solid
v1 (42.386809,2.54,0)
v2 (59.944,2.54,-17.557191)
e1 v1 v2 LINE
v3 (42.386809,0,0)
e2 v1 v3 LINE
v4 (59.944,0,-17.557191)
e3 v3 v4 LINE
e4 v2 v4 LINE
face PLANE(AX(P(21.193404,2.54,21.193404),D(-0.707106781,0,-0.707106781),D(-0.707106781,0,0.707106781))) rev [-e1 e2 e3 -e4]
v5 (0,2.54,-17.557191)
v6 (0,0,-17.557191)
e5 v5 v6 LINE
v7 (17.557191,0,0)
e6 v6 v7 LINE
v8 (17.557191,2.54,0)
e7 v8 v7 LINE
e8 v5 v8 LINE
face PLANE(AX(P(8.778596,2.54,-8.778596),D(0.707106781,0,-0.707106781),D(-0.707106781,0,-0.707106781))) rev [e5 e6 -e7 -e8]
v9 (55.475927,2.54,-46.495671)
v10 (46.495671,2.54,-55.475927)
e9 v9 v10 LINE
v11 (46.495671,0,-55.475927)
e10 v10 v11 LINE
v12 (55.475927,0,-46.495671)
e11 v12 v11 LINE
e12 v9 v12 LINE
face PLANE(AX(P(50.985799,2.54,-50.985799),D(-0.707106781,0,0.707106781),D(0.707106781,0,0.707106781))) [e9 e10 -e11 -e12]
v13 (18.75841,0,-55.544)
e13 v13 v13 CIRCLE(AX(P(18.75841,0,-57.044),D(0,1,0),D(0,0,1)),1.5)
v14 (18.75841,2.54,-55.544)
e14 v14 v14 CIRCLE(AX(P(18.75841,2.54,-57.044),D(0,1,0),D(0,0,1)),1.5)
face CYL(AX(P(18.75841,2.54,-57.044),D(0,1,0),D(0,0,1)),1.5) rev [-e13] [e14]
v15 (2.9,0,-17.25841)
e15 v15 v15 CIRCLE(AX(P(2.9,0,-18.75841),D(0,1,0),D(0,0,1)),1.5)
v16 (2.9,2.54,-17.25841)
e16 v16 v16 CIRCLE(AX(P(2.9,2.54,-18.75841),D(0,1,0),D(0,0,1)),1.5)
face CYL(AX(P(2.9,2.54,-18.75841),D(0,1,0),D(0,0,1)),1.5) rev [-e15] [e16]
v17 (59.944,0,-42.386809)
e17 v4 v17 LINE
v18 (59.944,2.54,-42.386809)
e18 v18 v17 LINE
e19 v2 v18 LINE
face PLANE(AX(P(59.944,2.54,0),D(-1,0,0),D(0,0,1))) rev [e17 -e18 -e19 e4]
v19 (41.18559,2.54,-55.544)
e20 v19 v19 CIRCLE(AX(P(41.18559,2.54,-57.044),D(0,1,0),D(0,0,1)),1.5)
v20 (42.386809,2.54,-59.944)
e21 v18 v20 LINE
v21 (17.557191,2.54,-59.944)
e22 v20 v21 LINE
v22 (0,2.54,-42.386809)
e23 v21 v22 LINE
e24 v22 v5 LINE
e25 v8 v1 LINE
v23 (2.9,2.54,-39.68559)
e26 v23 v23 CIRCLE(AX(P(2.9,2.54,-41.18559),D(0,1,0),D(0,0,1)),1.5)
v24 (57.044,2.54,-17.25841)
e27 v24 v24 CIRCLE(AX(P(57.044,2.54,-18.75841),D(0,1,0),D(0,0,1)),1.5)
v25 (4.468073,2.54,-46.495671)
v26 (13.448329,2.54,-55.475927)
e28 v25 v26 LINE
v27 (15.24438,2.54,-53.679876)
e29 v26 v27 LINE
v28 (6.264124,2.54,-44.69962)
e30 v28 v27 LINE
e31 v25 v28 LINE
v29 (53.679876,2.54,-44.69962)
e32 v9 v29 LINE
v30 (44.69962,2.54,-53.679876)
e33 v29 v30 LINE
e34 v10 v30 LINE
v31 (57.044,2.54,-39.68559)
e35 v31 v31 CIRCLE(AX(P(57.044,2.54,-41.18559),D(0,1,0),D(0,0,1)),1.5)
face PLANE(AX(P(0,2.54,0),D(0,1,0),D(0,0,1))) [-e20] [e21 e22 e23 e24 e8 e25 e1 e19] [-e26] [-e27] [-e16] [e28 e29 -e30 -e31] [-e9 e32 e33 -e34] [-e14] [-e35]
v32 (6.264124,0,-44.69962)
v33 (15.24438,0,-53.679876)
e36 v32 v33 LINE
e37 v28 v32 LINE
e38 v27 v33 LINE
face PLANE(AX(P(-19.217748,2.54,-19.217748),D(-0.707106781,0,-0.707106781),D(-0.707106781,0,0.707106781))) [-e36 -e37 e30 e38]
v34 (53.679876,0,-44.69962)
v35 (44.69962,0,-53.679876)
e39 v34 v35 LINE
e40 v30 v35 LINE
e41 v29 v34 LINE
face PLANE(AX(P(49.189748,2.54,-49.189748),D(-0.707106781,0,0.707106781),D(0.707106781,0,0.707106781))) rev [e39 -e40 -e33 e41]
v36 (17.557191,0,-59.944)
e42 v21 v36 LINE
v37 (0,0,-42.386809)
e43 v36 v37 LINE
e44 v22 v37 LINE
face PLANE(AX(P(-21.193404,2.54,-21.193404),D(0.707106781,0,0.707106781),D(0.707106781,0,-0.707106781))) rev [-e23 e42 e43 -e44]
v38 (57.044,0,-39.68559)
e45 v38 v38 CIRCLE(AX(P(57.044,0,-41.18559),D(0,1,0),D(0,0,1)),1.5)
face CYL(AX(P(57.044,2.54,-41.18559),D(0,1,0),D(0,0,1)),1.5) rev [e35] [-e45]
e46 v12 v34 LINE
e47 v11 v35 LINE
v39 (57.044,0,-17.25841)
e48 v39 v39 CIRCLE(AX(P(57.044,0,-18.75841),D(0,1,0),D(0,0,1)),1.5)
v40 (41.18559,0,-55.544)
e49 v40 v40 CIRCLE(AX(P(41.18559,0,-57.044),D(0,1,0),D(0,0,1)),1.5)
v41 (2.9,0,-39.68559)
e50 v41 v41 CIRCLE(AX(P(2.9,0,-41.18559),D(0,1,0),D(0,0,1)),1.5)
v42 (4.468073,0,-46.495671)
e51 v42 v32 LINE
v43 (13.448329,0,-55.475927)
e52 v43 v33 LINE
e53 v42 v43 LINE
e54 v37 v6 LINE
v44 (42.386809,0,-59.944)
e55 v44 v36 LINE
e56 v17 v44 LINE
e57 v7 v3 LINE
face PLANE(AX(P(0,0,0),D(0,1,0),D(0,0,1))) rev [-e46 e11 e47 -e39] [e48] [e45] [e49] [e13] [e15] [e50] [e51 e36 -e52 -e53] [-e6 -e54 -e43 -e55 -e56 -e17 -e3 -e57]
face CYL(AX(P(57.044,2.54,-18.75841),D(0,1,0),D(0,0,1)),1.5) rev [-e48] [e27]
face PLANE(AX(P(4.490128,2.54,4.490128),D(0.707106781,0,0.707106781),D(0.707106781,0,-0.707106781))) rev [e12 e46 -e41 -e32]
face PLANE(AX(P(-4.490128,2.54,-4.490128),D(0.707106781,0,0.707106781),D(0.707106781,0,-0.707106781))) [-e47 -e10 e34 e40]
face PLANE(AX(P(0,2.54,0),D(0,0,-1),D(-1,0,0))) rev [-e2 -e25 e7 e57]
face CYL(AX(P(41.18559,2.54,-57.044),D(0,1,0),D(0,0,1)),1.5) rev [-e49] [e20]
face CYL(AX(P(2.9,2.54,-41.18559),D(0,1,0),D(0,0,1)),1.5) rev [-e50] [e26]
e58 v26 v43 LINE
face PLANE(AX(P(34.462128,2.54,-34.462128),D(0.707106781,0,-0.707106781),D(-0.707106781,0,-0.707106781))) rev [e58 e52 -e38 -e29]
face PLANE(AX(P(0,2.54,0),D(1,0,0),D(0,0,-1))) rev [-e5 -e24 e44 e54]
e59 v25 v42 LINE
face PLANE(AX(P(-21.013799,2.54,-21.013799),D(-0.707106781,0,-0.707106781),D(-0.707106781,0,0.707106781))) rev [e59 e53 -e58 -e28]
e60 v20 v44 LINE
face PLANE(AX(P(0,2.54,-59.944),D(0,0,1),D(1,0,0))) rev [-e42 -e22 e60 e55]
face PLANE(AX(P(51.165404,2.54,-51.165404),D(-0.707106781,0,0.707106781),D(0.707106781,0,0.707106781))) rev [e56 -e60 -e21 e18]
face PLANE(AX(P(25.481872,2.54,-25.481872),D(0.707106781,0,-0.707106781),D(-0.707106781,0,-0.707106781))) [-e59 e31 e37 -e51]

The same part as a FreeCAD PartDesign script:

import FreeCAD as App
import Part
import Sketcher
Q = App.Units.Quantity

doc = App.newDocument("Part")
body = doc.addObject("PartDesign::Body", "Body")

# Sketch on XZ plane
sketch1 = doc.addObject("Sketcher::SketchObject", "Sketch")
body.addObject(sketch1)
sketch1.AttachmentSupport = (doc.XZ_Plane, [""])
sketch1.MapMode = "FlatFace"
sketch1.addGeometry(Part.LineSegment(App.Vector(59.9, -42.4, 0), App.Vector(42.4, -59.9, 0)), False)
sketch1.addGeometry(Part.LineSegment(App.Vector(42.4, -59.9, 0), App.Vector(17.6, -59.9, 0)), False)
sketch1.addGeometry(Part.LineSegment(App.Vector(17.6, -59.9, 0), App.Vector(0, -42.4, 0)), False)
sketch1.addGeometry(Part.LineSegment(App.Vector(0, -42.4, 0), App.Vector(0, -17.6, 0)), False)
sketch1.addGeometry(Part.LineSegment(App.Vector(0, -17.6, 0), App.Vector(17.6, 0, 0)), False)
sketch1.addGeometry(Part.LineSegment(App.Vector(17.6, 0, 0), App.Vector(42.4, 0, 0)), False)
sketch1.addGeometry(Part.LineSegment(App.Vector(42.4, 0, 0), App.Vector(59.9, -17.6, 0)), False)
sketch1.addGeometry(Part.LineSegment(App.Vector(59.9, -17.6, 0), App.Vector(59.9, -42.4, 0)), False)
sketch1.addGeometry(Part.LineSegment(App.Vector(6.3, -44.7, 0), App.Vector(4.5, -46.5, 0)), False)
sketch1.addGeometry(Part.LineSegment(App.Vector(4.5, -46.5, 0), App.Vector(13.4, -55.5, 0)), False)
sketch1.addGeometry(Part.LineSegment(App.Vector(13.4, -55.5, 0), App.Vector(15.2, -53.7, 0)), False)
sketch1.addGeometry(Part.LineSegment(App.Vector(15.2, -53.7, 0), App.Vector(6.3, -44.7, 0)), False)
sketch1.addGeometry(Part.LineSegment(App.Vector(55.5, -46.5, 0), App.Vector(53.7, -44.7, 0)), False)
sketch1.addGeometry(Part.LineSegment(App.Vector(53.7, -44.7, 0), App.Vector(44.7, -53.7, 0)), False)
sketch1.addGeometry(Part.LineSegment(App.Vector(44.7, -53.7, 0), App.Vector(46.5, -55.5, 0)), False)
sketch1.addGeometry(Part.LineSegment(App.Vector(46.5, -55.5, 0), App.Vector(55.5, -46.5, 0)), False)
sketch1.addConstraint(Sketcher.Constraint("Coincident", 0, 2, 1, 1))
sketch1.addConstraint(Sketcher.Constraint("Coincident", 1, 2, 2, 1))
sketch1.addConstraint(Sketcher.Constraint("Coincident", 2, 2, 3, 1))
sketch1.addConstraint(Sketcher.Constraint("Coincident", 3, 2, 4, 1))
sketch1.addConstraint(Sketcher.Constraint("Coincident", 4, 2, 5, 1))
sketch1.addConstraint(Sketcher.Constraint("Coincident", 5, 2, 6, 1))
sketch1.addConstraint(Sketcher.Constraint("Coincident", 6, 2, 7, 1))
sketch1.addConstraint(Sketcher.Constraint("Coincident", 7, 2, 0, 1))
sketch1.addConstraint(Sketcher.Constraint("Coincident", 8, 2, 9, 1))
sketch1.addConstraint(Sketcher.Constraint("Coincident", 9, 2, 10, 1))
sketch1.addConstraint(Sketcher.Constraint("Coincident", 10, 2, 11, 1))
sketch1.addConstraint(Sketcher.Constraint("Coincident", 11, 2, 8, 1))
sketch1.addConstraint(Sketcher.Constraint("Coincident", 12, 2, 13, 1))
sketch1.addConstraint(Sketcher.Constraint("Coincident", 13, 2, 14, 1))
sketch1.addConstraint(Sketcher.Constraint("Coincident", 14, 2, 15, 1))
sketch1.addConstraint(Sketcher.Constraint("Coincident", 15, 2, 12, 1))
sketch1.addConstraint(Sketcher.Constraint("Horizontal", 1))
sketch1.addConstraint(Sketcher.Constraint("Vertical", 3))
sketch1.addConstraint(Sketcher.Constraint("Horizontal", 5))
sketch1.addConstraint(Sketcher.Constraint("Vertical", 7))
sketch1.addConstraint(Sketcher.Constraint("PointOnObject", 2, 2, -2))
sketch1.addConstraint(Sketcher.Constraint("PointOnObject", 4, 2, -1))
sketch1.addConstraint(Sketcher.Constraint("Perpendicular", 0, 2))
sketch1.addConstraint(Sketcher.Constraint("Perpendicular", 2, 4))
sketch1.addConstraint(Sketcher.Constraint("Perpendicular", 4, 6))
sketch1.addConstraint(Sketcher.Constraint("Perpendicular", 6, 8))
sketch1.addConstraint(Sketcher.Constraint("Perpendicular", 8, 9))
sketch1.addConstraint(Sketcher.Constraint("Perpendicular", 9, 10))
sketch1.addConstraint(Sketcher.Constraint("Perpendicular", 10, 11))
sketch1.addConstraint(Sketcher.Constraint("Parallel", 11, 12))
sketch1.addConstraint(Sketcher.Constraint("Perpendicular", 12, 13))
sketch1.addConstraint(Sketcher.Constraint("Perpendicular", 13, 14))
sketch1.addConstraint(Sketcher.Constraint("Perpendicular", 14, 15))
sketch1.addConstraint(Sketcher.Constraint("Horizontal", 3, 2, 6, 2))
sketch1.addConstraint(Sketcher.Constraint("Horizontal", 2, 2, 7, 2))
sketch1.addConstraint(Sketcher.Constraint("Horizontal", 11, 2, 12, 2))
sketch1.addConstraint(Sketcher.Constraint("Horizontal", 10, 2, 13, 2))
sketch1.addConstraint(Sketcher.Constraint("Horizontal", 9, 2, 14, 2))
sketch1.addConstraint(Sketcher.Constraint("Vertical", 1, 2, 4, 2))
sketch1.addConstraint(Sketcher.Constraint("Vertical", 0, 2, 5, 2))
sketch1.addConstraint(Sketcher.Constraint("Equal", 5, 3))
sketch1.addConstraint(Sketcher.Constraint("Distance", 8, Q("0.1 in")))
sketch1.addConstraint(Sketcher.Constraint("Distance", 9, Q("0.5 in")))
sketch1.addConstraint(Sketcher.Constraint("DistanceY", 0, 2, -1, 1, Q("2.36 in")))
sketch1.addConstraint(Sketcher.Constraint("DistanceX", 1, 2, 1, 1, Q("24.829618 mm")))
sketch1.addConstraint(Sketcher.Constraint("DistanceY", 8, 2, -1, 1, Q("46.495671 mm")))
sketch1.addConstraint(Sketcher.Constraint("DistanceX", -1, 1, 9, 2, Q("13.448329 mm")))
sketch1.addConstraint(Sketcher.Constraint("DistanceX", -1, 1, 13, 2, Q("44.69962 mm")))
pad1 = doc.addObject("PartDesign::Pad", "Pad")
body.addObject(pad1)
pad1.Profile = sketch1
pad1.Length = Q("0.1 in")
pad1.Reversed = True

# Sketch on XZ plane
sketch2 = doc.addObject("Sketcher::SketchObject", "Sketch001")
body.addObject(sketch2)
sketch2.AttachmentSupport = (doc.XZ_Plane, [""])
sketch2.MapMode = "FlatFace"
sketch2.AttachmentOffset = App.Placement(App.Vector(0, 0, -0.1 * 25.4), App.Rotation())
sketch2.addGeometry(Part.Circle(App.Vector(2.9, -18.8, 0), App.Vector(0, 0, 1), 1.5), False)
sketch2.addGeometry(Part.Circle(App.Vector(57, -18.8, 0), App.Vector(0, 0, 1), 1.5), False)
sketch2.addGeometry(Part.Circle(App.Vector(2.9, -41.2, 0), App.Vector(0, 0, 1), 1.5), False)
sketch2.addGeometry(Part.Circle(App.Vector(57, -41.2, 0), App.Vector(0, 0, 1), 1.5), False)
sketch2.addGeometry(Part.Circle(App.Vector(18.8, -57, 0), App.Vector(0, 0, 1), 1.5), False)
sketch2.addGeometry(Part.Circle(App.Vector(41.2, -57, 0), App.Vector(0, 0, 1), 1.5), False)
sketch2.addConstraint(Sketcher.Constraint("Equal", 0, 1))
sketch2.addConstraint(Sketcher.Constraint("Equal", 1, 2))
sketch2.addConstraint(Sketcher.Constraint("Equal", 2, 3))
sketch2.addConstraint(Sketcher.Constraint("Equal", 3, 4))
sketch2.addConstraint(Sketcher.Constraint("Equal", 4, 5))
sketch2.addConstraint(Sketcher.Constraint("Horizontal", 0, 3, 1, 3))
sketch2.addConstraint(Sketcher.Constraint("Horizontal", 2, 3, 3, 3))
sketch2.addConstraint(Sketcher.Constraint("Horizontal", 4, 3, 5, 3))
sketch2.addConstraint(Sketcher.Constraint("Vertical", 0, 3, 2, 3))
sketch2.addConstraint(Sketcher.Constraint("Vertical", 1, 3, 3, 3))
sketch2.addConstraint(Sketcher.Constraint("Diameter", 0, Q("3 mm")))
sketch2.addConstraint(Sketcher.Constraint("DistanceX", -1, 1, 0, 3, Q("2.9 mm")))
sketch2.addConstraint(Sketcher.Constraint("DistanceX", -1, 1, 1, 3, Q("57.044 mm")))
sketch2.addConstraint(Sketcher.Constraint("DistanceY", 4, 3, -1, 1, Q("57.044 mm")))
sketch2.addConstraint(Sketcher.Constraint("DistanceY", 0, 3, -1, 1, Q("18.75841 mm")))
sketch2.addConstraint(Sketcher.Constraint("DistanceY", 2, 3, -1, 1, Q("41.18559 mm")))
sketch2.addConstraint(Sketcher.Constraint("DistanceX", -1, 1, 4, 3, Q("18.75841 mm")))
sketch2.addConstraint(Sketcher.Constraint("DistanceX", -1, 1, 5, 3, Q("41.18559 mm")))
doc.recompute()
hole = doc.addObject("PartDesign::Hole", "Hole")
body.addObject(hole)
hole.Profile = sketch2
hole.ThreadType = "None"
hole.Diameter = 3
hole.DepthType = "Dimension"
hole.Depth = 7.999984
hole.DrillPoint = "Angled"
hole.DrillPointAngle = 118
hole.Reversed = True

doc.recompute()
